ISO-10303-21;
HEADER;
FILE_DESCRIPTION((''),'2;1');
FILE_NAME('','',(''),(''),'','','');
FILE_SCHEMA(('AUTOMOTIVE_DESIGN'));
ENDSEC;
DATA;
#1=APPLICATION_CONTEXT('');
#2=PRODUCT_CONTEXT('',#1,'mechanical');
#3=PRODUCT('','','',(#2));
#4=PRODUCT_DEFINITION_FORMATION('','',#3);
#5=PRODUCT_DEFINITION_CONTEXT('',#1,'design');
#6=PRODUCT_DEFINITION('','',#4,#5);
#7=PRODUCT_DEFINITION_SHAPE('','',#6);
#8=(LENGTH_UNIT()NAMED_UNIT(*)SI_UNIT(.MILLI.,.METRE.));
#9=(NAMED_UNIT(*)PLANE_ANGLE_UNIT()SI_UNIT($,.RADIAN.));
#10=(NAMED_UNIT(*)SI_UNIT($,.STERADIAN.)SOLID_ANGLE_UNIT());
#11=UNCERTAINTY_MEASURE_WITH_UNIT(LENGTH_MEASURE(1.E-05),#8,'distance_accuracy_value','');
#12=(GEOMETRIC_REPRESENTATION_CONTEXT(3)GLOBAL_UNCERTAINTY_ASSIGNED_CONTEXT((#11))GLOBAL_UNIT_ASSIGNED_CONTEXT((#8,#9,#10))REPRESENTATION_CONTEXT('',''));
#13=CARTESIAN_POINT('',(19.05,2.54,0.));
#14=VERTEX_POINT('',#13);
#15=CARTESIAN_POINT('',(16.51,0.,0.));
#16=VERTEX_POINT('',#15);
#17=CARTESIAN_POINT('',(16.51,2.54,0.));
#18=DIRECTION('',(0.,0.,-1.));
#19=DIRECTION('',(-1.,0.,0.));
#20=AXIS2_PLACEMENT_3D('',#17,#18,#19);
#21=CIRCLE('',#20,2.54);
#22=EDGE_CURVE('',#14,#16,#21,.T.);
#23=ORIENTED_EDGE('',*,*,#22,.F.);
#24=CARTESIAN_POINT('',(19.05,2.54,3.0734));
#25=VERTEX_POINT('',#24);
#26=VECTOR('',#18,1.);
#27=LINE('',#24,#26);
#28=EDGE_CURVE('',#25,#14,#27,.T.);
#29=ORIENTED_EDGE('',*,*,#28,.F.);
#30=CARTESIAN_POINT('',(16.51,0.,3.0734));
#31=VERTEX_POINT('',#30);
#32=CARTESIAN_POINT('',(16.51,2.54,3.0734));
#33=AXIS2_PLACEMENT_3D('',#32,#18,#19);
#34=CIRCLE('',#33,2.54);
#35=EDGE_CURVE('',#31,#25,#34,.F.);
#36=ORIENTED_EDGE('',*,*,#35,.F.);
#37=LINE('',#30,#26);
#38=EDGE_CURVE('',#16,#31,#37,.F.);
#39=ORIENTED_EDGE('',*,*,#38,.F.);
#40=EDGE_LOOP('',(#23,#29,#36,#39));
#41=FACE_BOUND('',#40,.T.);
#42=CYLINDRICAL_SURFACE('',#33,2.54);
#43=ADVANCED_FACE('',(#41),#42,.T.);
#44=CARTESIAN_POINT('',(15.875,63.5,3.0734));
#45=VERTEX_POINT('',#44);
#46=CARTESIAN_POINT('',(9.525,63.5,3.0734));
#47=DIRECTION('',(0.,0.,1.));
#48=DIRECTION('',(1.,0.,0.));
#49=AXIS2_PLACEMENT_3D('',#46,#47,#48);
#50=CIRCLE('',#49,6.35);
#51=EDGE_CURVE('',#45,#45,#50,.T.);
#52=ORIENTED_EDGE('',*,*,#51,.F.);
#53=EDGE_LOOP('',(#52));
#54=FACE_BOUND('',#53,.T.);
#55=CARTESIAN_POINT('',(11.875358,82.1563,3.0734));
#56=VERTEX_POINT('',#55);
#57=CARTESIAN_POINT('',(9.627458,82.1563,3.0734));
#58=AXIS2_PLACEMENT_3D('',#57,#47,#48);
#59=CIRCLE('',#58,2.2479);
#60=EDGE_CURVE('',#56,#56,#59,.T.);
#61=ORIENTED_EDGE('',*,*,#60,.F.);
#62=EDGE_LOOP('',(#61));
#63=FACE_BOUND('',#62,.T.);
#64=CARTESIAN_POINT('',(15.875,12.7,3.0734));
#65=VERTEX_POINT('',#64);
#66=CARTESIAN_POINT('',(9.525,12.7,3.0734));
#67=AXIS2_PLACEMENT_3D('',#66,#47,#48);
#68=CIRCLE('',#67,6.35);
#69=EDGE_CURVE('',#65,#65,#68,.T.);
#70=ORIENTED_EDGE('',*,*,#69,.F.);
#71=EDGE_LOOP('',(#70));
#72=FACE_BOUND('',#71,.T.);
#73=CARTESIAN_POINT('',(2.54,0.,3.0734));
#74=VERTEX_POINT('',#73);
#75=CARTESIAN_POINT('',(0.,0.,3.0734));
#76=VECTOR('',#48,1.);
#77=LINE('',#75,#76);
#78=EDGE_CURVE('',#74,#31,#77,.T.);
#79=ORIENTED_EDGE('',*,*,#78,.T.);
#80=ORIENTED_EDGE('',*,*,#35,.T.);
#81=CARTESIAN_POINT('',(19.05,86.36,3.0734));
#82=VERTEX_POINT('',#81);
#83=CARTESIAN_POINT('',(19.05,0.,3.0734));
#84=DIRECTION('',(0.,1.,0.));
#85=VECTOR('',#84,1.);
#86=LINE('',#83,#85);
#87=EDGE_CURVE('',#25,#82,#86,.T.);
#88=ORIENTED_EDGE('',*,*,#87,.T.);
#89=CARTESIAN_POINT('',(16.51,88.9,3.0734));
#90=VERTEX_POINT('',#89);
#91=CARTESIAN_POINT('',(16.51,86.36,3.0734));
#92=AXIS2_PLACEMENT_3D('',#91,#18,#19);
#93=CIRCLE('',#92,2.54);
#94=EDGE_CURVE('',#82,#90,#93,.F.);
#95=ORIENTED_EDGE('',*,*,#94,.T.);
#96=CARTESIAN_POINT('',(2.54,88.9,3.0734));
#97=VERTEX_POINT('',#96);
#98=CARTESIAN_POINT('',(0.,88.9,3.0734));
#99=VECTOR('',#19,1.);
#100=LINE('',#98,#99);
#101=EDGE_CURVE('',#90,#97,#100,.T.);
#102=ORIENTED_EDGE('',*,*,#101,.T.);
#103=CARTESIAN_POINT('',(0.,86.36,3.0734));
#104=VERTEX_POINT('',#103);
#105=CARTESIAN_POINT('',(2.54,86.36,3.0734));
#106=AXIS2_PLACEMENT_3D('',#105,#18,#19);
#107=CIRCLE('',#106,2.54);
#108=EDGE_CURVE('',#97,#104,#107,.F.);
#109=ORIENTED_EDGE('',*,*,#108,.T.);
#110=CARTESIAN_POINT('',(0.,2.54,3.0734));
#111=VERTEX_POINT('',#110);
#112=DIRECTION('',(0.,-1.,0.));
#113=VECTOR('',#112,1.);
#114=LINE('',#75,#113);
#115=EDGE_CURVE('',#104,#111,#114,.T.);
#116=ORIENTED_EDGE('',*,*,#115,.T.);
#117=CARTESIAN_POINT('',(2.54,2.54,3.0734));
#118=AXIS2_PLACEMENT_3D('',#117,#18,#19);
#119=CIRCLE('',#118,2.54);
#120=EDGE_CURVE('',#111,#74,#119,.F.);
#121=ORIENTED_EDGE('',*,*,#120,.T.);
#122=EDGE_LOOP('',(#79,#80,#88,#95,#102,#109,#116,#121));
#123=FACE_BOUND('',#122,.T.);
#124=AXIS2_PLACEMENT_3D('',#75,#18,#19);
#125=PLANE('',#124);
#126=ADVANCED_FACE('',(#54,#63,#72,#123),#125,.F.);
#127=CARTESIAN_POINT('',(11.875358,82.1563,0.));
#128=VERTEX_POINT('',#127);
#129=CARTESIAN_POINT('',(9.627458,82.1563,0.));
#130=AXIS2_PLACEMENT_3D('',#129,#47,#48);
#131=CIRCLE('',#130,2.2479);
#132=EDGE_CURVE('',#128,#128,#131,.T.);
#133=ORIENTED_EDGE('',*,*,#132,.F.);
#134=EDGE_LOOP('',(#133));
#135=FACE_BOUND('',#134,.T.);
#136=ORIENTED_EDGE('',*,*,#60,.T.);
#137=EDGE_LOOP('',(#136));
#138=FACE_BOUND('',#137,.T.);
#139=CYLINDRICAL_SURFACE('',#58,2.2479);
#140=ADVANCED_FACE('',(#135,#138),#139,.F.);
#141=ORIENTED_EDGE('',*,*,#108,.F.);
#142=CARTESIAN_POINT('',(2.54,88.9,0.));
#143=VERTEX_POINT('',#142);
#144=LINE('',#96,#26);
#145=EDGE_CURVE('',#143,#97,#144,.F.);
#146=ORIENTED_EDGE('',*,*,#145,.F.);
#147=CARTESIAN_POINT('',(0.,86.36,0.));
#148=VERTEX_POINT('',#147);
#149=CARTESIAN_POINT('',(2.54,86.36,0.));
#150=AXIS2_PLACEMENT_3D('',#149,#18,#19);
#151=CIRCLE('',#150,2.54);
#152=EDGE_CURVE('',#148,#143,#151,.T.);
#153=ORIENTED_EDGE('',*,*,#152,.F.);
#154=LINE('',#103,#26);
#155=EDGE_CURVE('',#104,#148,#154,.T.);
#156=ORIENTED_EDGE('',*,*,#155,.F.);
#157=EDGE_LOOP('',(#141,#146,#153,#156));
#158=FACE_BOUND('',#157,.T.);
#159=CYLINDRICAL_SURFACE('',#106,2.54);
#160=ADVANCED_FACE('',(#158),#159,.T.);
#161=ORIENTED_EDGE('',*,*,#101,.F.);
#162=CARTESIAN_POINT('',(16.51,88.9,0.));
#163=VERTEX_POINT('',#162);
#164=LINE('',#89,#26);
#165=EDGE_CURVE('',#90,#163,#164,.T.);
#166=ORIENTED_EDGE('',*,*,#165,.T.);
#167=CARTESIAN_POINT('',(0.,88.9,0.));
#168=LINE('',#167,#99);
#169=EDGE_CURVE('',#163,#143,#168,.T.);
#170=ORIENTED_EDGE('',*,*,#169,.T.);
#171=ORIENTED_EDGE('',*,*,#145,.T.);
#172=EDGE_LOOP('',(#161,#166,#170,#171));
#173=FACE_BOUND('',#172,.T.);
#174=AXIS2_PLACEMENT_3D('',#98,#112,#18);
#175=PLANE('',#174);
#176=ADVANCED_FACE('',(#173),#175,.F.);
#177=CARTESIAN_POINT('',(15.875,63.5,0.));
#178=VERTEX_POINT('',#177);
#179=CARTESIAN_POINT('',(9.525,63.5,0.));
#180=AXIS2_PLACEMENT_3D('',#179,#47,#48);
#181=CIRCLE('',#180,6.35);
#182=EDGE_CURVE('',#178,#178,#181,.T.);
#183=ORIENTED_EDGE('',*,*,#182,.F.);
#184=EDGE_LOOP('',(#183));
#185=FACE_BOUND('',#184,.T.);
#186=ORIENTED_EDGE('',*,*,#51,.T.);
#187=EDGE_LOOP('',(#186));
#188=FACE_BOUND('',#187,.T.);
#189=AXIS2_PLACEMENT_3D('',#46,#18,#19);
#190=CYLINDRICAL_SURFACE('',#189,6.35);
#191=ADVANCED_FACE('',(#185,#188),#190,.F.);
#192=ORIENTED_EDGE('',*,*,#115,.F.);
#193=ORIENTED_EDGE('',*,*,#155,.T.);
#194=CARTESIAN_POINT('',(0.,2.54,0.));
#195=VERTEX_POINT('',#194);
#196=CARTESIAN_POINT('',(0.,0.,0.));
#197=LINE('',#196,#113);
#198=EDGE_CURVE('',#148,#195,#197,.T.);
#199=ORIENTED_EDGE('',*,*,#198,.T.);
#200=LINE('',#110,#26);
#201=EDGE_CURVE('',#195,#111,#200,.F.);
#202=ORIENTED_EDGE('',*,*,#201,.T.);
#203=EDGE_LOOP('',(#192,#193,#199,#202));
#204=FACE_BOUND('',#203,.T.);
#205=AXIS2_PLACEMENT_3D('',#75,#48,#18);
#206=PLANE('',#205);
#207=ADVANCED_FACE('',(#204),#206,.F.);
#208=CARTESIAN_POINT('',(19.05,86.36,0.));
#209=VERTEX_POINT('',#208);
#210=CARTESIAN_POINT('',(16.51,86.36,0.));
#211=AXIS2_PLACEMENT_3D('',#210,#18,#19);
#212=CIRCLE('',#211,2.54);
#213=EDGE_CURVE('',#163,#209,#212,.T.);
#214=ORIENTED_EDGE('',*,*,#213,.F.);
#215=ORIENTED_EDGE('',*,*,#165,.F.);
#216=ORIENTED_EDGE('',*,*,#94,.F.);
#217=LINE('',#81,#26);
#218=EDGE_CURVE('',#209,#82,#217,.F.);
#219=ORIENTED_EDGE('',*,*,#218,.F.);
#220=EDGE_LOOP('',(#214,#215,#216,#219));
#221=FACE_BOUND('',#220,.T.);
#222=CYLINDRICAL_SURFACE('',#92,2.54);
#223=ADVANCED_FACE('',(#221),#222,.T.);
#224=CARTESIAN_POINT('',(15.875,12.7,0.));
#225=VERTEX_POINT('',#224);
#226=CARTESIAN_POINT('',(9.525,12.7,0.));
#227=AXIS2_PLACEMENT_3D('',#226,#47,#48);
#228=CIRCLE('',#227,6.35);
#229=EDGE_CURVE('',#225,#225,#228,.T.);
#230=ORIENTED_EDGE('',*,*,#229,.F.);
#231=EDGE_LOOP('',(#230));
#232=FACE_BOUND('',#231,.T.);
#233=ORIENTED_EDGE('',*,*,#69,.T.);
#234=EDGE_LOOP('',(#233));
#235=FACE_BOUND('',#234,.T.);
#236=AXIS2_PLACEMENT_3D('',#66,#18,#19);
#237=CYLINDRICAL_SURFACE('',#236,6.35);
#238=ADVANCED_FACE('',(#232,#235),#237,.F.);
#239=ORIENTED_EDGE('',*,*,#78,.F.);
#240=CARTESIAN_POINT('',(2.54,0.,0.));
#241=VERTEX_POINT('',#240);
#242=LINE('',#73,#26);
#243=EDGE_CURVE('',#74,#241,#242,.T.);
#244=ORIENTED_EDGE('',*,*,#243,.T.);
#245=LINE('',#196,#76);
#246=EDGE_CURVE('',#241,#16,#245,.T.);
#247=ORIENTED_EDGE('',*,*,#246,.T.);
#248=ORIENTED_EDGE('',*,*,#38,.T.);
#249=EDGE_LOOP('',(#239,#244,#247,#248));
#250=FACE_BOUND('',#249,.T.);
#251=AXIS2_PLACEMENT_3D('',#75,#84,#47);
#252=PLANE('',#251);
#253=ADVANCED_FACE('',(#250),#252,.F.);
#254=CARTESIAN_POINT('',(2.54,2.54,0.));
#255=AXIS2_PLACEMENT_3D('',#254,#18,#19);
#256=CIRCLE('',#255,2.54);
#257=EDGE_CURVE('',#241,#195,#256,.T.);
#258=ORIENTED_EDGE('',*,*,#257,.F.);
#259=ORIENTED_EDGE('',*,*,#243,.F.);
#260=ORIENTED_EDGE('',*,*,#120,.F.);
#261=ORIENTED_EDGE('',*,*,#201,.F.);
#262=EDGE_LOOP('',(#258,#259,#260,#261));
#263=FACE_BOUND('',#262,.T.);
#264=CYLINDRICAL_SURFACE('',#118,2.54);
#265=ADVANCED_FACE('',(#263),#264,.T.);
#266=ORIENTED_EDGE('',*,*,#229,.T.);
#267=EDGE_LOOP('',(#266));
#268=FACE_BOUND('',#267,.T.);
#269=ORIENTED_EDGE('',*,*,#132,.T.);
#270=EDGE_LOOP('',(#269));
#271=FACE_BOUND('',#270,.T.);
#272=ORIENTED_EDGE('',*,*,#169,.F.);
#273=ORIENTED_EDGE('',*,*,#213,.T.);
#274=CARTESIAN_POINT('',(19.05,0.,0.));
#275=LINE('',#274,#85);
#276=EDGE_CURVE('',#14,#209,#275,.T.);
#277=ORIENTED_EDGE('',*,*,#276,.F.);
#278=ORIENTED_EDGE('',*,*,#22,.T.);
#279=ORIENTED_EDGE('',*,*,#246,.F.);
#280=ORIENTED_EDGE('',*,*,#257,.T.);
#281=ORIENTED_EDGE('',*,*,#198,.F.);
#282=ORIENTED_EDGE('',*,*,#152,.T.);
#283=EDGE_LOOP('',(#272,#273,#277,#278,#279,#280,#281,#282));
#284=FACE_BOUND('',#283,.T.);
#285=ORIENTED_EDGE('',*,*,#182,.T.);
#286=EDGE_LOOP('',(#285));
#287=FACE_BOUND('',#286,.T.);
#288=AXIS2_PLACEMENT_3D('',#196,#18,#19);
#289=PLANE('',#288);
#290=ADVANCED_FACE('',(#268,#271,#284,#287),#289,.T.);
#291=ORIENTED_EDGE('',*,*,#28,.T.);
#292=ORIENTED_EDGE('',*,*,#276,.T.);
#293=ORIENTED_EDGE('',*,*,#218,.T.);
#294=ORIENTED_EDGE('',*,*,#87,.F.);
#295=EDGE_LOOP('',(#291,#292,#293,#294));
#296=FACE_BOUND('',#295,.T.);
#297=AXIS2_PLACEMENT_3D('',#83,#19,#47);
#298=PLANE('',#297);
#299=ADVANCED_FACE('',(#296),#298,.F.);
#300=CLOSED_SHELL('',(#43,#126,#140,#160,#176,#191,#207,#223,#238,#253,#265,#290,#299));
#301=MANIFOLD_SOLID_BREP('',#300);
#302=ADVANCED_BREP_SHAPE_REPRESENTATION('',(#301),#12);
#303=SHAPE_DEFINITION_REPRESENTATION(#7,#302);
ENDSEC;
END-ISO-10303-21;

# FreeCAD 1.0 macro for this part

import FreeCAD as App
import Part
import Sketcher
Q = App.Units.Quantity


def edges_at(feature, points):
    """Names of the edges that pass closest to the given points."""
    edges = feature.Shape.Edges
    near = lambda p: min(range(len(edges)), key=lambda i: edges[i].distToShape(Part.Vertex(*p))[0])
    return sorted({f"Edge{near(p) + 1}" for p in points})

doc = App.newDocument("Part")
body = doc.addObject("PartDesign::Body", "Body")

# Sketch on XY plane
sketch1 = body.newObject("Sketcher::SketchObject", "Sketch")
sketch1.AttachmentSupport = (doc.getObject("XY_Plane"), [""])
sketch1.MapMode = "FlatFace"
sketch1.addGeometry(Part.LineSegment(App.Vector(0, 89, 0), App.Vector(0, 0, 0)), False)
sketch1.addGeometry(Part.LineSegment(App.Vector(0, 0, 0), App.Vector(19, 0, 0)), False)
sketch1.addGeometry(Part.LineSegment(App.Vector(19, 0, 0), App.Vector(19, 89, 0)), False)
sketch1.addGeometry(Part.LineSegment(App.Vector(19, 89, 0), App.Vector(0, 89, 0)), False)
sketch1.addGeometry(Part.Circle(App.Vector(10, 13, 0), App.Vector(0, 0, 1), 6), False)
sketch1.addGeometry(Part.Circle(App.Vector(10, 64, 0), App.Vector(0, 0, 1), 6), False)
sketch1.addConstraint(Sketcher.Constraint("Coincident", 0, 2, 1, 1))
sketch1.addConstraint(Sketcher.Constraint("Coincident", 1, 2, 2, 1))
sketch1.addConstraint(Sketcher.Constraint("Coincident", 2, 2, 3, 1))
sketch1.addConstraint(Sketcher.Constraint("Coincident", 3, 2, 0, 1))
sketch1.addConstraint(Sketcher.Constraint("Vertical", 0))
sketch1.addConstraint(Sketcher.Constraint("Horizontal", 1))
sketch1.addConstraint(Sketcher.Constraint("Vertical", 2))
sketch1.addConstraint(Sketcher.Constraint("Horizontal", 3))
sketch1.addConstraint(Sketcher.Constraint("Coincident", 0, 2, -1, 1))
sketch1.addConstraint(Sketcher.Constraint("Equal", 4, 5))
sketch1.addConstraint(Sketcher.Constraint("Vertical", 4, 3, 5, 3))
sketch1.addConstraint(Sketcher.Constraint("Diameter", 4, Q("0.5 in")))
sketch1.addConstraint(Sketcher.Constraint("DistanceY", 0, 2, 0, 1, Q("3.5 in")))
sketch1.addConstraint(Sketcher.Constraint("DistanceY", 4, 3, 5, 3, Q("2 in")))
sketch1.addConstraint(Sketcher.Constraint("DistanceY", 5, 3, 2, 2, Q("1 in")))
sketch1.addConstraint(Sketcher.Constraint("DistanceX", 1, 1, 1, 2, Q("0.75 in")))
sketch1.addConstraint(Sketcher.Constraint("DistanceX", -1, 1, 4, 3, Q("0.375 in")))
pad1 = body.newObject("PartDesign::Pad", "Pad")
pad1.Profile = sketch1
pad1.Length = Q("0.121 in")

# Sketch on XY plane
sketch2 = body.newObject("Sketcher::SketchObject", "Sketch001")
sketch2.AttachmentSupport = (doc.getObject("XY_Plane"), [""])
sketch2.MapMode = "FlatFace"
sketch2.AttachmentOffset = App.Placement(App.Vector(0, 0, 0.121 * 25.4), App.Rotation())
sketch2.addGeometry(Part.Circle(App.Vector(9.6, 82.2, 0), App.Vector(0, 0, 1), 2.2), False)
sketch2.addConstraint(Sketcher.Constraint("Diameter", 0, Q("0.177 in")))
sketch2.addConstraint(Sketcher.Constraint("DistanceY", -1, 1, 0, 3, Q("3.2345 in")))
sketch2.addConstraint(Sketcher.Constraint("DistanceX", -1, 1, 0, 3, Q("9.627458 mm")))
doc.recompute()
hole = body.newObject("PartDesign::Hole", "Hole")
hole.Profile = sketch2
hole.ThreadType = "None"
hole.Diameter = Q("0.177 in")
hole.DepthType = "ThroughAll"
doc.recompute()

fillet = body.newObject("PartDesign::Fillet", "Fillet")
fillet.Base = (hole, edges_at(hole, [
    (0, 88.9, 1.537),
    (19.05, 88.9, 1.537),
    (19.05, 0, 1.537),
    (0, 0, 1.537),
]))
fillet.Radius = Q("0.1 in")

doc.recompute()
